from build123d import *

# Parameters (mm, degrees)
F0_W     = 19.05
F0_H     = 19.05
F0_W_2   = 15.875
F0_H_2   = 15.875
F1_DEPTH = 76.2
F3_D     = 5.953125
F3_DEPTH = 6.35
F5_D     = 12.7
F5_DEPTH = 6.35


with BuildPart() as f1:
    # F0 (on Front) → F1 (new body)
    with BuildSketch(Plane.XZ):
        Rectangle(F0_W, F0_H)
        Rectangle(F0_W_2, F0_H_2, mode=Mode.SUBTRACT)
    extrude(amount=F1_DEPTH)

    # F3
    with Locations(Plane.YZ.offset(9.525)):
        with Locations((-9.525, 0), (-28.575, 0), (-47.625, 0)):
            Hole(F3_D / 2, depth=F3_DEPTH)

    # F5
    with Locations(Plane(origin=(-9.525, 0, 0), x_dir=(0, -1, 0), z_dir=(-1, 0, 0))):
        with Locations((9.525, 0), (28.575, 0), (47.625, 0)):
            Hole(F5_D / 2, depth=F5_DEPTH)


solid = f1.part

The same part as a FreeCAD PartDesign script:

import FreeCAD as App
import Part
import Sketcher

V = App.Vector
Q = App.Units.Quantity


def add_polygon(sketch, points):
    """Adds a closed chain of lines whose ends are joined by coincident constraints."""
    first, n = sketch.GeometryCount, len(points)
    for a, b in zip(points, points[1:] + points[:1]):
        sketch.addGeometry(Part.LineSegment(App.Vector(*a, 0), App.Vector(*b, 0)), False)
    for i in range(n):
        sketch.addConstraint(Sketcher.Constraint("Coincident", first + i, 2, first + (i + 1) % n, 1))

doc = App.newDocument("Part")
body = doc.addObject("PartDesign::Body", "Body")

# Sketch on XZ plane
sketch1 = body.newObject("Sketcher::SketchObject", "Sketch")
sketch1.AttachmentSupport = (doc.getObject("XZ_Plane"), [""])
sketch1.MapMode = "FlatFace"
add_polygon(sketch1, [(-10, 10), (-10, -10), (10, -10), (10, 10)])  # lines 0-3
add_polygon(sketch1, [(8, -8), (-8, -8), (-8, 8), (8, 8)])  # lines 4-7
sketch1.addConstraint([
    Sketcher.Constraint("Vertical", 0),
    Sketcher.Constraint("Horizontal", 1),
    Sketcher.Constraint("Vertical", 2),
    Sketcher.Constraint("Horizontal", 3),
    Sketcher.Constraint("Horizontal", 4),
    Sketcher.Constraint("Vertical", 5),
    Sketcher.Constraint("Horizontal", 6),
    Sketcher.Constraint("Vertical", 7),
    Sketcher.Constraint("Symmetric", 0, 2, 2, 2, -1, 1),
    Sketcher.Constraint("Symmetric", 4, 2, 6, 2, -1, 1),
    Sketcher.Constraint("Equal", 3, 0),
    Sketcher.Constraint("Equal", 6, 5),
    Sketcher.Constraint("DistanceX", 1, 1, 1, 2, Q("0.75 in")),
    Sketcher.Constraint("DistanceX", 4, 2, 4, 1, Q("0.625 in")),
])
pad1 = body.newObject("PartDesign::Pad", "Pad")
pad1.Profile = sketch1
pad1.Length = Q("3 in")

# Sketch on YZ plane
sketch2 = body.newObject("Sketcher::SketchObject", "Sketch001")
sketch2.AttachmentSupport = (doc.getObject("YZ_Plane"), [""])
sketch2.MapMode = "FlatFace"
sketch2.AttachmentOffset = App.Placement(V(0, 0, 0.375 * 25.4), App.Rotation())
sketch2.addGeometry([
    Part.Circle(V(-9.5, 0, 0), V(0, 0, 1), 3),
    Part.Circle(V(-28.6, 0, 0), V(0, 0, 1), 3),
    Part.Circle(V(-47.6, 0, 0), V(0, 0, 1), 3),
], False)
sketch2.addConstraint([
    Sketcher.Constraint("Equal", 0, 1),
    Sketcher.Constraint("Equal", 1, 2),
    Sketcher.Constraint("PointOnObject", 0, 3, -1),
    Sketcher.Constraint("PointOnObject", 1, 3, -1),
    Sketcher.Constraint("PointOnObject", 2, 3, -1),
    Sketcher.Constraint("Diameter", 0, Q("0.234375 in")),
    Sketcher.Constraint("DistanceX", 2, 3, 0, 3, Q("1.5 in")),
    Sketcher.Constraint("DistanceX", 1, 3, 0, 3, Q("0.75 in")),
    Sketcher.Constraint("DistanceX", 0, 3, -1, 1, Q("0.375 in")),
])
doc.recompute()
hole = body.newObject("PartDesign::Hole", "Hole")
hole.Profile = sketch2
hole.ThreadType = "None"
hole.Diameter = Q("0.234375 in")
hole.DepthType = "Dimension"
hole.Depth = Q("0.25 in")
hole.DrillPoint = "Flat"

# Sketch on YZ plane
sketch3 = body.newObject("Sketcher::SketchObject", "Sketch002")
sketch3.AttachmentSupport = (doc.getObject("YZ_Plane"), [""])
sketch3.MapMode = "FlatFace"
sketch3.AttachmentOffset = App.Placement(V(0, 0, -0.375 * 25.4), App.Rotation())
sketch3.addGeometry([
    Part.Circle(V(-10, 0, 0), V(0, 0, 1), 6),
    Part.Circle(V(-29, 0, 0), V(0, 0, 1), 6),
    Part.Circle(V(-48, 0, 0), V(0, 0, 1), 6),
], False)
sketch3.addConstraint([
    Sketcher.Constraint("Equal", 0, 1),
    Sketcher.Constraint("Equal", 1, 2),
    Sketcher.Constraint("PointOnObject", 0, 3, -1),
    Sketcher.Constraint("PointOnObject", 1, 3, -1),
    Sketcher.Constraint("PointOnObject", 2, 3, -1),
    Sketcher.Constraint("Diameter", 0, Q("0.5 in")),
    Sketcher.Constraint("DistanceX", 2, 3, 0, 3, Q("1.5 in")),
    Sketcher.Constraint("DistanceX", 1, 3, 0, 3, Q("0.75 in")),
    Sketcher.Constraint("DistanceX", 0, 3, -1, 1, Q("0.375 in")),
])
doc.recompute()
hole2 = body.newObject("PartDesign::Hole", "Hole001")
hole2.Profile = sketch3
hole2.ThreadType = "None"
hole2.Diameter = Q("0.5 in")
hole2.DepthType = "Dimension"
hole2.Depth = Q("0.25 in")
hole2.DrillPoint = "Flat"
hole2.Reversed = True

doc.recompute()
